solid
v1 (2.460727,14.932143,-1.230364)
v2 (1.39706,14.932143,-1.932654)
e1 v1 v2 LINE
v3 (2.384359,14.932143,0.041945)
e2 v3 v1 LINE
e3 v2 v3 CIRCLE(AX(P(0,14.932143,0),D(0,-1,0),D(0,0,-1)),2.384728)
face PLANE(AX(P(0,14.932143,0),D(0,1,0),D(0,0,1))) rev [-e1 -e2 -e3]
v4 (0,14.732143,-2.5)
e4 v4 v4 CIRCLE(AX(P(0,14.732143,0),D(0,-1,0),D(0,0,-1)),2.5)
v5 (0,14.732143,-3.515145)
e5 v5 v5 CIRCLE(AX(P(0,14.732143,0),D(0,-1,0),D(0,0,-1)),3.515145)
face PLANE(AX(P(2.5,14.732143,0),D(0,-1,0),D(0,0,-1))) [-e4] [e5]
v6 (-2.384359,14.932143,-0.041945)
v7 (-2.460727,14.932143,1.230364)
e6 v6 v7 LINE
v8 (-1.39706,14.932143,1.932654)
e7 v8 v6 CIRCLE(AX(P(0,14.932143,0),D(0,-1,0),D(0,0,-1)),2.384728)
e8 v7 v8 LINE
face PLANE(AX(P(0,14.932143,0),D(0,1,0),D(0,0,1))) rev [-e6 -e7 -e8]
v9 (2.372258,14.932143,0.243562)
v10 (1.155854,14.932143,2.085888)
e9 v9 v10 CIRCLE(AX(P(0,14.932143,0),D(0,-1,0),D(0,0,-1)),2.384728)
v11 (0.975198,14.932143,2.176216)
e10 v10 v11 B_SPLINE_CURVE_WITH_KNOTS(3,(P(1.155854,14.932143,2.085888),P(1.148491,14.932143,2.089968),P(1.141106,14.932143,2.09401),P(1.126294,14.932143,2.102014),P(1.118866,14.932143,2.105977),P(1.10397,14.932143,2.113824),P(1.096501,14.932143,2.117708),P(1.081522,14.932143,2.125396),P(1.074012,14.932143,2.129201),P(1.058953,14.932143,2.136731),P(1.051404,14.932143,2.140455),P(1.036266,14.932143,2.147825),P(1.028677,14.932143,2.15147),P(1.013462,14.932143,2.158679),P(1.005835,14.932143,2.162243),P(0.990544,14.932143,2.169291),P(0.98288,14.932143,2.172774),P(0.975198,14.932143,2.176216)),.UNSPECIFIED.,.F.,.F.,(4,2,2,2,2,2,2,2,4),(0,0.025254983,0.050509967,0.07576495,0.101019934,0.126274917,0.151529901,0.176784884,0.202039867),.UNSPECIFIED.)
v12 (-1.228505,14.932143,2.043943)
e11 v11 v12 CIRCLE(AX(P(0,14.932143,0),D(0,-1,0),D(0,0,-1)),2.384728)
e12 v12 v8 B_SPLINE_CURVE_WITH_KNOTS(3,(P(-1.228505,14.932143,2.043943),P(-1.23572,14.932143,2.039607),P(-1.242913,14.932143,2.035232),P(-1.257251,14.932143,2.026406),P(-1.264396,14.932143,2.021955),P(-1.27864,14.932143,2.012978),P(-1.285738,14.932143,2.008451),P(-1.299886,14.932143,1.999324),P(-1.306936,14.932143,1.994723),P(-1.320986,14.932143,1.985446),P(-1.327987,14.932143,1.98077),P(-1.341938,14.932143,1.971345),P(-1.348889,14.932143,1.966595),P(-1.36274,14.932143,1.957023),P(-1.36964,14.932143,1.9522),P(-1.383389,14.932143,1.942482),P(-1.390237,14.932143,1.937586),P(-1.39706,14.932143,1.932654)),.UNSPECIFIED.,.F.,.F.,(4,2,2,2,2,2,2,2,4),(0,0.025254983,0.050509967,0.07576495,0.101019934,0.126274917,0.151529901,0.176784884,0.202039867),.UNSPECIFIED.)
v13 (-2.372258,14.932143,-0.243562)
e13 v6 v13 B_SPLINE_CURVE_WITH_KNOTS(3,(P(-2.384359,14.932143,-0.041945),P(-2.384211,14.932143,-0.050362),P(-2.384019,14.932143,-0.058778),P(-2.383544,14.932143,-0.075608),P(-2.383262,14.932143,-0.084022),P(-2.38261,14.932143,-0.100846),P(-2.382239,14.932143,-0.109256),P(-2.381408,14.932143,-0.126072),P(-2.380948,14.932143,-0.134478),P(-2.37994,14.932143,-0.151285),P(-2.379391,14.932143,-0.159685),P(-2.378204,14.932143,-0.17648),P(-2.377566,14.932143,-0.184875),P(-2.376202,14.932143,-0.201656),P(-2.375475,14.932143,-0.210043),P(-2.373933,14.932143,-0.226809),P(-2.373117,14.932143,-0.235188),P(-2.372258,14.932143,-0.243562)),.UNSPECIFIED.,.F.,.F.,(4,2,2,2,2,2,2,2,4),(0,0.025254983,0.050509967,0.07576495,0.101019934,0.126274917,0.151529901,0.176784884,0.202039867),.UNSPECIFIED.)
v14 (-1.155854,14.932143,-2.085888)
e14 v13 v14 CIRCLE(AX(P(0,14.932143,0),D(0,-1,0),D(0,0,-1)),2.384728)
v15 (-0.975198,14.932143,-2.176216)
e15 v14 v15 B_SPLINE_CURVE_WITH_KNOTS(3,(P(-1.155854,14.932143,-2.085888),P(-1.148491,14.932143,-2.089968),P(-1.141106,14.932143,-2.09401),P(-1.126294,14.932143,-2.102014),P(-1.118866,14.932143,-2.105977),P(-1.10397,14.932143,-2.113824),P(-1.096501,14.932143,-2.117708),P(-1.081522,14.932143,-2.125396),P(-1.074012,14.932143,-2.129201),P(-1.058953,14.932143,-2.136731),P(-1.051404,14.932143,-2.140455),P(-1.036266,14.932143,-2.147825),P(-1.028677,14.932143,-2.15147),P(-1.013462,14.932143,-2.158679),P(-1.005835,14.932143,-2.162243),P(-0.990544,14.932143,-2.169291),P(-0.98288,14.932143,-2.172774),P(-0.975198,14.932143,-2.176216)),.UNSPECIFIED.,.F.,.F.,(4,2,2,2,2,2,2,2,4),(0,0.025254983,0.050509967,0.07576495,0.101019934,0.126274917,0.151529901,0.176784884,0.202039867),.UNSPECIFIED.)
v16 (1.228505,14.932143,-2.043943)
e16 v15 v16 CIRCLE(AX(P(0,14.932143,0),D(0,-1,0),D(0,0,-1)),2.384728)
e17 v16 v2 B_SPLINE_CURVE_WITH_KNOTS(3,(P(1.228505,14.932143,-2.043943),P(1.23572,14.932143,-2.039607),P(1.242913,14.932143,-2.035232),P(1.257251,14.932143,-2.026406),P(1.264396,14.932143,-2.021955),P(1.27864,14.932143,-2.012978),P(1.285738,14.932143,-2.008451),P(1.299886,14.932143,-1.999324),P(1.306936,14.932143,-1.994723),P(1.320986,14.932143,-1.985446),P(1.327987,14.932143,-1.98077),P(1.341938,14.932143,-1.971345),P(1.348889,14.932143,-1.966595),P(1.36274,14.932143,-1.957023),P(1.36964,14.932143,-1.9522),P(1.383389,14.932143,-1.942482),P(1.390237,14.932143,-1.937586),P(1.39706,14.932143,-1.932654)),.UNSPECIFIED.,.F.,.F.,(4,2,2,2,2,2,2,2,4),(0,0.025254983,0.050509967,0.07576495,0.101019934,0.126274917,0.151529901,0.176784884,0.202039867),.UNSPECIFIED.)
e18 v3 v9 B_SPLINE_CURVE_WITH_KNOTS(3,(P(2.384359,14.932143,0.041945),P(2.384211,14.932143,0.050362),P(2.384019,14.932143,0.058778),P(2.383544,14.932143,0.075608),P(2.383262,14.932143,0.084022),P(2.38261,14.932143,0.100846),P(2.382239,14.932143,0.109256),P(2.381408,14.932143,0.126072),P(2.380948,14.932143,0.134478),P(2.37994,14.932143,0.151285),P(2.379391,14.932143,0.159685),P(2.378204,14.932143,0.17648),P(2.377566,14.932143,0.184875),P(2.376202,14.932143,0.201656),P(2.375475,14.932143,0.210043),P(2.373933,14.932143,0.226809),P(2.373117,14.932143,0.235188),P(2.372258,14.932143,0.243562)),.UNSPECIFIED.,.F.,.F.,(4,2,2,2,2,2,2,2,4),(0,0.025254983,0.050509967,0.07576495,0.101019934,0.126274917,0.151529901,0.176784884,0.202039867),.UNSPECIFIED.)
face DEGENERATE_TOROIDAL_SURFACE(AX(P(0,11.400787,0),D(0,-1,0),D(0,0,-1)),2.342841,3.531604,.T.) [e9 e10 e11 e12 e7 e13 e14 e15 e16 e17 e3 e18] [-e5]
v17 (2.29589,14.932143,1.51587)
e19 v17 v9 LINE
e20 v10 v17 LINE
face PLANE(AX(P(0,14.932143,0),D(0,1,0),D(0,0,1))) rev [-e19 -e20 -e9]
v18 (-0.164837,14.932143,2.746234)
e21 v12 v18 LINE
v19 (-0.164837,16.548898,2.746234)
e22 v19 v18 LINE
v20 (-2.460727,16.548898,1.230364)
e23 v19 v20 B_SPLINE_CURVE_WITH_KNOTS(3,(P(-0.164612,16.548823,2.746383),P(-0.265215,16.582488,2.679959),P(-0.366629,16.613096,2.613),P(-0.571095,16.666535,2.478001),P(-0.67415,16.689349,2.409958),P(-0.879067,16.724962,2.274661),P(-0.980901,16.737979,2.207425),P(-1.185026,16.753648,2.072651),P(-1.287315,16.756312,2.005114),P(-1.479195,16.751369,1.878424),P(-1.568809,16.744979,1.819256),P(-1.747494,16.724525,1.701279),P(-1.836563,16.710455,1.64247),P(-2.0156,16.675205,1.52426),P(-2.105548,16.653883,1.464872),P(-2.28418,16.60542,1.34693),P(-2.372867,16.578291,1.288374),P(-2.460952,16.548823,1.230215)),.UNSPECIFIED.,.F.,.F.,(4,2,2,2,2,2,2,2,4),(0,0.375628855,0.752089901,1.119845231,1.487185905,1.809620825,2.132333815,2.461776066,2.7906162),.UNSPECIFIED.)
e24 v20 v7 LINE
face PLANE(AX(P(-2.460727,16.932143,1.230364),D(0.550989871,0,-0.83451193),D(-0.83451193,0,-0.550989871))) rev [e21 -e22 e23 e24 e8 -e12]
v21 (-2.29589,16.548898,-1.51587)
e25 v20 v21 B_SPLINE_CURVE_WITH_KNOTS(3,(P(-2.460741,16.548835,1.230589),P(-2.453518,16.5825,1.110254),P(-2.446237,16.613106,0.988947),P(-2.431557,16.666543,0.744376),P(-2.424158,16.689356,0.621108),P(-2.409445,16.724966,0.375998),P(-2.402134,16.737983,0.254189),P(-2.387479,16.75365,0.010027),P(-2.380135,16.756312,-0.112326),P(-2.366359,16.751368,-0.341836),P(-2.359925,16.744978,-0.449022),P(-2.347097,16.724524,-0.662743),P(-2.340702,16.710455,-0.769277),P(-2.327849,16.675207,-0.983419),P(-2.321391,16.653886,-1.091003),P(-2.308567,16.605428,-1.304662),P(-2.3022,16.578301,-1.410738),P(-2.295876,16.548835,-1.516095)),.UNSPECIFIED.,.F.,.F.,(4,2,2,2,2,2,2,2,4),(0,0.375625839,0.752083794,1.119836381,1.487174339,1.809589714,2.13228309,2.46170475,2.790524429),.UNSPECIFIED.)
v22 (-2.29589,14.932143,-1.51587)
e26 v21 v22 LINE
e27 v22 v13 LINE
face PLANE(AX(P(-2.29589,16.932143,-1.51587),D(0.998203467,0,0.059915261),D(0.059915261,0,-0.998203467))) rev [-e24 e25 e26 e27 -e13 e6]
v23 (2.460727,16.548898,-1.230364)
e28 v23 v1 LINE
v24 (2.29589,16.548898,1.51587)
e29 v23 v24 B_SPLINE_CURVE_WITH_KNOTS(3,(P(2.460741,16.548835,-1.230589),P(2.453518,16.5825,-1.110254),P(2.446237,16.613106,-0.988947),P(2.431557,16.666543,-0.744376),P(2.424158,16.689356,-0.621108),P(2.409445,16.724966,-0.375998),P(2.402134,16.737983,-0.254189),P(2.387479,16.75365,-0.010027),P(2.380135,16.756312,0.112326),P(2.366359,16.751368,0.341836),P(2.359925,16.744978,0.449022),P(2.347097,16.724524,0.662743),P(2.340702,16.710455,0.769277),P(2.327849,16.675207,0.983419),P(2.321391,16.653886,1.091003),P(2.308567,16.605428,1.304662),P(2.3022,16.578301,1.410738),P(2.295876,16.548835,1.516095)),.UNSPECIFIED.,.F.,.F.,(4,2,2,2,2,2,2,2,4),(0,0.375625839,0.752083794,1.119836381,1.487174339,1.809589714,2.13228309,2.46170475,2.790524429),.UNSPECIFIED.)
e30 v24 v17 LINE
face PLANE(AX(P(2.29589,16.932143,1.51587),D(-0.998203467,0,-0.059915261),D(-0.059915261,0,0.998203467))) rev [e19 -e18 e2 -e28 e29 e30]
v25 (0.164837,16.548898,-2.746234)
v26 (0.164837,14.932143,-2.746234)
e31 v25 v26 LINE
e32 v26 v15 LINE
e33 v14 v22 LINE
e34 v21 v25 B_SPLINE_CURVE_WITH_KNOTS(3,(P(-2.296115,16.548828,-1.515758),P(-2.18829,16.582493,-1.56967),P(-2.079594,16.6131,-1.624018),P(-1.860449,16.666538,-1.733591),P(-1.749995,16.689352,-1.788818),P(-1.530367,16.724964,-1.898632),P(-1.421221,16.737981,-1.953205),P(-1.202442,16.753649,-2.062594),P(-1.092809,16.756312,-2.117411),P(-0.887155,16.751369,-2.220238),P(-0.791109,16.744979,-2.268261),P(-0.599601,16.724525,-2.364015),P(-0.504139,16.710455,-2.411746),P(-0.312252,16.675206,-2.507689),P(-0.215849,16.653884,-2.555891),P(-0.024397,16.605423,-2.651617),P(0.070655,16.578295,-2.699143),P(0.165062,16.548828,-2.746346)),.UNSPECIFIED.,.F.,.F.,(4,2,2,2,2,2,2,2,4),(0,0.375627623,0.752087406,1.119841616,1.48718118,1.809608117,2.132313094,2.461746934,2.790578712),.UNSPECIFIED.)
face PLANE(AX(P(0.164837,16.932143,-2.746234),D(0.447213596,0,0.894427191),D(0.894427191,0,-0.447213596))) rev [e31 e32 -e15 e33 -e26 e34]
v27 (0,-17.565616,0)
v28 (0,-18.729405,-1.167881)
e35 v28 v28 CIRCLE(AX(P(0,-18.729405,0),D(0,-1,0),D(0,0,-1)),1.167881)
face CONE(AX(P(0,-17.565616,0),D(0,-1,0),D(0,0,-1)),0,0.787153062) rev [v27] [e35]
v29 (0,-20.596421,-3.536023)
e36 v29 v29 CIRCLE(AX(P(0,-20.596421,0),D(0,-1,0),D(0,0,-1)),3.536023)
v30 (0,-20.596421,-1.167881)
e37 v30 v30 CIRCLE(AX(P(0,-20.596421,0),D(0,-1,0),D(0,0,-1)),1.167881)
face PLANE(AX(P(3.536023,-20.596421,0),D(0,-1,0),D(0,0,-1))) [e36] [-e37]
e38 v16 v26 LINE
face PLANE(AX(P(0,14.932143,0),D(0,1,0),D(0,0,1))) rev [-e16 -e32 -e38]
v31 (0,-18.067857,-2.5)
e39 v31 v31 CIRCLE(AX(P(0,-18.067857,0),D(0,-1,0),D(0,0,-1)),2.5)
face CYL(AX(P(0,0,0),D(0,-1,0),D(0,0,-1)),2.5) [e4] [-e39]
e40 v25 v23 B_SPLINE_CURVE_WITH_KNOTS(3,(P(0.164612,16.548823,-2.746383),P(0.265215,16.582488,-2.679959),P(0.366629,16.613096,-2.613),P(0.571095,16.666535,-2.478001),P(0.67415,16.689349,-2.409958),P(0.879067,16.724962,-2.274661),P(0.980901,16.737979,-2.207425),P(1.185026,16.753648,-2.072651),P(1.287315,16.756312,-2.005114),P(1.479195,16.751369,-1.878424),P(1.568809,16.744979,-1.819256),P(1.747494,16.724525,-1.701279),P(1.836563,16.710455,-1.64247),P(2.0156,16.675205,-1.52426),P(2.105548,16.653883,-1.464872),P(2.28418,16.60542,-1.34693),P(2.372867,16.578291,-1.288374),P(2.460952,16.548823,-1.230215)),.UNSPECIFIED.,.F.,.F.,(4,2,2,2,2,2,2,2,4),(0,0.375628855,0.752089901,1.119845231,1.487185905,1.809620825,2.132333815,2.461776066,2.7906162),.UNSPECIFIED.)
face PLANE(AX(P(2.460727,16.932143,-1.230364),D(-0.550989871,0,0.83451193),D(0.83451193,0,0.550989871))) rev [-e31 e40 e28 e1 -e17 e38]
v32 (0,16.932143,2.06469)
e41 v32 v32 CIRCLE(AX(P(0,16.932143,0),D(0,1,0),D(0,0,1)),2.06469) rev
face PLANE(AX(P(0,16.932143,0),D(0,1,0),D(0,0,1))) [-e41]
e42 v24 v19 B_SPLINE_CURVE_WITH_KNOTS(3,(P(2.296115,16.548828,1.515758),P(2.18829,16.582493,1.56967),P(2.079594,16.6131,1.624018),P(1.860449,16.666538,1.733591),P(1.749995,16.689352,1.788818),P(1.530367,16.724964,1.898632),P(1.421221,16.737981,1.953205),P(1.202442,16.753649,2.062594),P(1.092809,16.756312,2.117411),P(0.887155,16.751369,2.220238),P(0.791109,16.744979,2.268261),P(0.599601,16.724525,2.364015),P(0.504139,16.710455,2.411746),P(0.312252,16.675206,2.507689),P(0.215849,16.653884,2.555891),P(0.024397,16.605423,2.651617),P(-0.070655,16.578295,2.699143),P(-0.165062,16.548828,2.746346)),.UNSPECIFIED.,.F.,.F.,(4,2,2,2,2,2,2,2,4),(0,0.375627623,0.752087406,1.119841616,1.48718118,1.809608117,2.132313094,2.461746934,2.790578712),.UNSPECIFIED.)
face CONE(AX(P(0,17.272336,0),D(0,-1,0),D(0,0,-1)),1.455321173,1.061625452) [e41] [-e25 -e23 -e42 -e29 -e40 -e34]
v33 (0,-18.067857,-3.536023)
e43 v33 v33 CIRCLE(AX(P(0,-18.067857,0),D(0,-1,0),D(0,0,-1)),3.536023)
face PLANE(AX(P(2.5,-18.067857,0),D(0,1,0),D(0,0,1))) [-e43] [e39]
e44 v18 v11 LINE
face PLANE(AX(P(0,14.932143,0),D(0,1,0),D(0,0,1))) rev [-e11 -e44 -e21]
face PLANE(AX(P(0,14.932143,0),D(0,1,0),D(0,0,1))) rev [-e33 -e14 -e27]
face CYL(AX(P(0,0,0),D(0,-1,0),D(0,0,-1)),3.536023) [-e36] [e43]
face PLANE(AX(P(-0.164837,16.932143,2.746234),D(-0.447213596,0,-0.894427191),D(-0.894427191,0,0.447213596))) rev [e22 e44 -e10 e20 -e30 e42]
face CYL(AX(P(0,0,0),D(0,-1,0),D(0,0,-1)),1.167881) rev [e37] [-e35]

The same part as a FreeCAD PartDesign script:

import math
import FreeCAD as App
import Part
import Sketcher
from FreeCAD import Vector

doc = App.newDocument("Part")
params = doc.addObject("Spreadsheet::Sheet", "Params")
for row, (alias, value) in enumerate([
    ("sketch1_height", "32.8 mm"),
    ("revolution_angle", "360 deg"),
    ("pad1_length", "2 mm"),
    ("groove_angle", "360 deg"),
], start=1):
    params.set(f"A{row}", alias)
    params.set(f"B{row}", "=" + value)
    params.setAlias(f"B{row}", alias)

body = doc.addObject("PartDesign::Body", "Body")

# Sketch on XY plane
sketch1 = body.newObject("Sketcher::SketchObject", "Sketch")
sketch1.AttachmentSupport = (doc.getObject("XY_Plane"), [""])
sketch1.MapMode = "FlatFace"
sketch1.addGeometry([
    Part.LineSegment(Vector(2.5, -18.1, 0), Vector(2.5, 14.7, 0)),  # 0
    Part.LineSegment(Vector(2.5, 14.7, 0), Vector(3.5, 14.7, 0)),  # 1
    Part.ArcOfCircle(Part.Circle(Vector(2.3, 11.4, 0), Vector(0, 0, 1), 3.5), math.radians(70.61), math.radians(89.32)),  # 2
    Part.LineSegment(Vector(2.4, 14.9, 0), Vector(0, 14.9, 0)),  # 3
    Part.LineSegment(Vector(0, 14.9, 0), Vector(0, -17.6, 0)),  # 4
    Part.LineSegment(Vector(0, -17.6, 0), Vector(1.2, -18.7, 0)),  # 5
    Part.LineSegment(Vector(1.2, -18.7, 0), Vector(1.2, -20.6, 0)),  # 6
    Part.LineSegment(Vector(1.2, -20.6, 0), Vector(3.5, -20.6, 0)),  # 7
    Part.LineSegment(Vector(3.5, -20.6, 0), Vector(3.5, -18.1, 0)),  # 8
    Part.LineSegment(Vector(3.5, -18.1, 0), Vector(2.5, -18.1, 0)),  # 9
], False)
sketch1.addConstraint([
    Sketcher.Constraint("Coincident", 0, 2, 1, 1),
    Sketcher.Constraint("Coincident", 1, 2, 2, 1),
    Sketcher.Constraint("Coincident", 2, 2, 3, 1),
    Sketcher.Constraint("Coincident", 3, 2, 4, 1),
    Sketcher.Constraint("Coincident", 4, 2, 5, 1),
    Sketcher.Constraint("Coincident", 5, 2, 6, 1),
    Sketcher.Constraint("Coincident", 6, 2, 7, 1),
    Sketcher.Constraint("Coincident", 7, 2, 8, 1),
    Sketcher.Constraint("Coincident", 8, 2, 9, 1),
    Sketcher.Constraint("Coincident", 9, 2, 0, 1),
    Sketcher.Constraint("Vertical", 0),
    Sketcher.Constraint("Horizontal", 1),
    Sketcher.Constraint("Horizontal", 3),
    Sketcher.Constraint("Vertical", 4),
    Sketcher.Constraint("Vertical", 6),
    Sketcher.Constraint("Horizontal", 7),
    Sketcher.Constraint("Vertical", 8),
    Sketcher.Constraint("Horizontal", 9),
    Sketcher.Constraint("PointOnObject", 3, 2, -2),
    Sketcher.Constraint("DistanceY", 0, 1, 0, 2, 32.8),
    Sketcher.Constraint("DistanceX", -1, 1, 0, 2, 2.5),
    Sketcher.Constraint("DistanceY", 0, 2, 2, 2, 0.2),
    Sketcher.Constraint("Radius", 2, 3.531604),
    Sketcher.Constraint("DistanceX", 3, 2, 3, 1, 2.384728),
    Sketcher.Constraint("DistanceX", 7, 1, 7, 2, 2.368142),
    Sketcher.Constraint("DistanceY", 4, 2, 4, 1, 32.497759),
    Sketcher.Constraint("DistanceX", 1, 1, 1, 2, 1.015145),
    Sketcher.Constraint("DistanceX", 9, 2, 9, 1, 1.036023),
    Sketcher.Constraint("DistanceY", 6, 2, 6, 1, 1.867015),
    Sketcher.Constraint("DistanceY", 8, 1, 8, 2, 2.528564),
    Sketcher.Constraint("DistanceY", 6, 2, -1, 1, 20.596421),
])
sketch1.setExpression("Constraints[19]", "Params.sketch1_height")
revolution = body.newObject("PartDesign::Revolution", "Revolution")
revolution.Profile = sketch1
revolution.ReferenceAxis = (sketch1, ["V_Axis"])
revolution.setExpression("Angle", "Params.revolution_angle")

# Sketch on XZ plane
sketch2 = body.newObject("Sketcher::SketchObject", "Sketch001")
sketch2.AttachmentSupport = (doc.getObject("XZ_Plane"), [""])
sketch2.MapMode = "FlatFace"
sketch2.AttachmentOffset = App.Placement(Vector(0, 0, -14.932143), App.Rotation())
sketch2.addGeometry([
    Part.LineSegment(Vector(2.5, -1.2, 0), Vector(0.2, -2.7, 0)),  # 0
    Part.LineSegment(Vector(0.2, -2.7, 0), Vector(-2.3, -1.5, 0)),  # 1
    Part.LineSegment(Vector(-2.3, -1.5, 0), Vector(-2.5, 1.2, 0)),  # 2
    Part.LineSegment(Vector(-2.5, 1.2, 0), Vector(-0.2, 2.7, 0)),  # 3
    Part.LineSegment(Vector(-0.2, 2.7, 0), Vector(2.3, 1.5, 0)),  # 4
    Part.LineSegment(Vector(2.3, 1.5, 0), Vector(2.5, -1.2, 0)),  # 5
], False)
sketch2.addConstraint([
    Sketcher.Constraint("Coincident", 0, 2, 1, 1),
    Sketcher.Constraint("Coincident", 1, 2, 2, 1),
    Sketcher.Constraint("Coincident", 2, 2, 3, 1),
    Sketcher.Constraint("Coincident", 3, 2, 4, 1),
    Sketcher.Constraint("Coincident", 4, 2, 5, 1),
    Sketcher.Constraint("Coincident", 5, 2, 0, 1),
    Sketcher.Constraint("Symmetric", 0, 2, 3, 2, -1, 1),
    Sketcher.Constraint("Symmetric", 1, 2, 4, 2, -1, 1),
    Sketcher.Constraint("Symmetric", 2, 2, 5, 2, -1, 1),
    Sketcher.Constraint("Equal", 0, 1),
    Sketcher.Constraint("Equal", 1, 2),
    Sketcher.Constraint("DistanceX", 1, 2, -1, 1, 2.29589),
    Sketcher.Constraint("DistanceY", 1, 2, -1, 1, 1.51587),
    Sketcher.Constraint("DistanceX", 2, 2, 3, 2, 2.29589),
    Sketcher.Constraint("DistanceY", 2, 2, 3, 2, 1.51587),
])
pad1 = body.newObject("PartDesign::Pad", "Pad")
pad1.Profile = sketch2
pad1.setExpression("Length", "Params.pad1_length")
pad1.Reversed = True

# Sketch on XY plane
sketch3 = body.newObject("Sketcher::SketchObject", "Sketch002")
sketch3.AttachmentSupport = (doc.getObject("XY_Plane"), [""])
sketch3.MapMode = "FlatFace"
sketch3.addGeometry([
    Part.LineSegment(Vector(1.5, 17.3, 0), Vector(3.2, 16.3, 0)),
    Part.LineSegment(Vector(3.2, 16.3, 0), Vector(3.2, 17.3, 0)),
    Part.LineSegment(Vector(3.2, 17.3, 0), Vector(1.5, 17.3, 0)),
], False)
sketch3.addConstraint([
    Sketcher.Constraint("Coincident", 0, 2, 1, 1),
    Sketcher.Constraint("Coincident", 1, 2, 2, 1),
    Sketcher.Constraint("Coincident", 2, 2, 0, 1),
    Sketcher.Constraint("Vertical", 1),
    Sketcher.Constraint("Horizontal", 2),
    Sketcher.Constraint("DistanceY", 1, 1, 1, 2, 0.996121),
    Sketcher.Constraint("Distance", 0, 2.043521),
    Sketcher.Constraint("DistanceX", -1, 1, 0, 2, 3.239619),
    Sketcher.Constraint("DistanceY", -1, 1, 0, 2, 16.276215),
])
groove = body.newObject("PartDesign::Groove", "Groove")
groove.Profile = sketch3
groove.ReferenceAxis = (sketch3, ["V_Axis"])
groove.setExpression("Angle", "Params.groove_angle")

doc.recompute()
